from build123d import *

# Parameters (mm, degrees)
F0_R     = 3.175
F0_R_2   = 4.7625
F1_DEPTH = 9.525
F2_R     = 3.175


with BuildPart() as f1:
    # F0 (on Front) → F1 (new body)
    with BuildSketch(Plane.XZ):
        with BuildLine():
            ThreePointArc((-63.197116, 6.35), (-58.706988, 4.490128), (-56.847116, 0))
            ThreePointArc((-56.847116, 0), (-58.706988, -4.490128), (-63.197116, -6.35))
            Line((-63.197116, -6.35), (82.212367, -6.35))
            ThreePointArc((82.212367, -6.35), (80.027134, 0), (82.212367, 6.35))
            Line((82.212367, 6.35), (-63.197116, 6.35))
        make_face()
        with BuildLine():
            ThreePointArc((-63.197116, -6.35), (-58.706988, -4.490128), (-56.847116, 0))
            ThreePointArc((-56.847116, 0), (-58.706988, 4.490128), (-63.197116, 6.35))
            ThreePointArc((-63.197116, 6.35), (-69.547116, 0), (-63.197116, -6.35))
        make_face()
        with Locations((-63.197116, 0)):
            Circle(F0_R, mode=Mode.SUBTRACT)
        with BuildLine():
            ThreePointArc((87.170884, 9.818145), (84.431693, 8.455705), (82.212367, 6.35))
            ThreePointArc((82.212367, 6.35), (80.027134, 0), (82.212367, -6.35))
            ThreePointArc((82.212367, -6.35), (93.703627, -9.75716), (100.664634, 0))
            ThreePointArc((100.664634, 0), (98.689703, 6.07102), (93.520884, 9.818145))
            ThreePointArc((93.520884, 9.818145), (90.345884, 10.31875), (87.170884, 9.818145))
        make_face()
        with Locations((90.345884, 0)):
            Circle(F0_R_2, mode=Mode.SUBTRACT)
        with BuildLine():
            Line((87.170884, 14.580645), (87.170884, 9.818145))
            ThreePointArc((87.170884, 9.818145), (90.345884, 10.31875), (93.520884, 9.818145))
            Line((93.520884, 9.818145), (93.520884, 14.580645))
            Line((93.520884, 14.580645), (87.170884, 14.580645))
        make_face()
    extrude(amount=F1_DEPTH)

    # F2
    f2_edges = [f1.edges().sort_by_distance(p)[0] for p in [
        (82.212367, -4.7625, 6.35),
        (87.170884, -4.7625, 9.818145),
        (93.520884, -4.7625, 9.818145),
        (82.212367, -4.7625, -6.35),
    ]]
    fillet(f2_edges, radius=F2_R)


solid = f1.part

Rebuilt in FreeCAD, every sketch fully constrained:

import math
import FreeCAD as App
import Part
import Sketcher
from FreeCAD import Vector
Q = App.Units.Quantity


def edges_at(feature, points):
    """Names of the edges that pass closest to the given points."""
    edges = feature.Shape.Edges
    near = lambda p: min(range(len(edges)), key=lambda i: edges[i].distToShape(Part.Vertex(*p))[0])
    return sorted({f"Edge{near(p) + 1}" for p in points})

doc = App.newDocument("Part")
body = doc.addObject("PartDesign::Body", "Body")

# Sketch on XZ plane
sketch1 = body.newObject("Sketcher::SketchObject", "Sketch")
sketch1.AttachmentSupport = (doc.getObject("XZ_Plane"), [""])
sketch1.MapMode = "FlatFace"
sketch1.addGeometry(Part.LineSegment(Vector(-63.197116, -6.35, 0), Vector(82.212367, -6.35, 0)), False)
sketch1.addGeometry(Part.ArcOfCircle(Part.Circle(Vector(90.345884, -0.000001, 0), Vector(0, 0, 1), 10.31875), math.radians(-142.020131), math.radians(0.000003)), False)
sketch1.addGeometry(Part.ArcOfCircle(Part.Circle(Vector(90.345884, 0, 0), Vector(0, 0, 1), 10.31875), math.radians(0.000001), math.radians(72.079788)), False)
sketch1.addGeometry(Part.LineSegment(Vector(93.520884, 9.818145, 0), Vector(93.520884, 14.580645, 0)), False)
sketch1.addGeometry(Part.LineSegment(Vector(93.520884, 14.580645, 0), Vector(87.170884, 14.580645, 0)), False)
sketch1.addGeometry(Part.LineSegment(Vector(87.170884, 14.580645, 0), Vector(87.170884, 9.818145, 0)), False)
sketch1.addGeometry(Part.ArcOfCircle(Part.Circle(Vector(90.345881, 0.000004, 0), Vector(0, 0, 1), 10.318745), math.radians(107.920204), math.radians(142.020134)), False)
sketch1.addGeometry(Part.LineSegment(Vector(82.212367, 6.35, 0), Vector(-63.197116, 6.35, 0)), False)
sketch1.addGeometry(Part.ArcOfCircle(Part.Circle(Vector(-63.197116, 0, 0), Vector(0, 0, 1), 6.35), math.radians(90), math.radians(270)), False)
sketch1.addGeometry(Part.Circle(Vector(-63.197116, 0, 0), Vector(0, 0, 1), 3.175), False)
sketch1.addGeometry(Part.Circle(Vector(90.345884, 0, 0), Vector(0, 0, 1), 4.7625), False)
sketch1.addConstraint(Sketcher.Constraint("Coincident", 0, 2, 1, 1))
sketch1.addConstraint(Sketcher.Constraint("Tangent", 1, 2, 2, 1))
sketch1.addConstraint(Sketcher.Constraint("Coincident", 2, 2, 3, 1))
sketch1.addConstraint(Sketcher.Constraint("Coincident", 3, 2, 4, 1))
sketch1.addConstraint(Sketcher.Constraint("Coincident", 4, 2, 5, 1))
sketch1.addConstraint(Sketcher.Constraint("Coincident", 5, 2, 6, 1))
sketch1.addConstraint(Sketcher.Constraint("Coincident", 6, 2, 7, 1))
sketch1.addConstraint(Sketcher.Constraint("Tangent", 7, 2, 8, 1))
sketch1.addConstraint(Sketcher.Constraint("Tangent", 8, 2, 0, 1))
sketch1.addConstraint(Sketcher.Constraint("Horizontal", 0))
sketch1.addConstraint(Sketcher.Constraint("Vertical", 3))
sketch1.addConstraint(Sketcher.Constraint("Horizontal", 4))
sketch1.addConstraint(Sketcher.Constraint("Vertical", 5))
sketch1.addConstraint(Sketcher.Constraint("Horizontal", 7))
sketch1.addConstraint(Sketcher.Constraint("Coincident", 6, 3, 1, 3))
sketch1.addConstraint(Sketcher.Constraint("Coincident", 9, 3, 8, 3))
sketch1.addConstraint(Sketcher.Constraint("Coincident", 10, 3, 1, 3))
sketch1.addConstraint(Sketcher.Constraint("Equal", 1, 2))
sketch1.addConstraint(Sketcher.Constraint("Symmetric", 0, 2, 6, 2, -1))
sketch1.addConstraint(Sketcher.Constraint("PointOnObject", 1, 3, -1))
sketch1.addConstraint(Sketcher.Constraint("PointOnObject", 1, 2, -1))
sketch1.addConstraint(Sketcher.Constraint("Horizontal", 2, 2, 5, 2))
sketch1.addConstraint(Sketcher.Constraint("Diameter", 9, Q("0.25 in")))
sketch1.addConstraint(Sketcher.Constraint("Radius", 8, Q("0.25 in")))
sketch1.addConstraint(Sketcher.Constraint("Diameter", 10, Q("0.375 in")))
sketch1.addConstraint(Sketcher.Constraint("Radius", 1, Q("0.40625 in")))
sketch1.addConstraint(Sketcher.Constraint("DistanceX", 4, 2, 4, 1, Q("0.25 in")))
sketch1.addConstraint(Sketcher.Constraint("DistanceY", 3, 1, 3, 2, Q("0.1875 in")))
sketch1.addConstraint(Sketcher.Constraint("DistanceX", 7, 2, 5, 2, Q("5.92 in")))
sketch1.addConstraint(Sketcher.Constraint("DistanceX", -1, 1, 6, 3, Q("90.345881 mm")))
pad1 = body.newObject("PartDesign::Pad", "Pad")
pad1.Profile = sketch1
pad1.Length = Q("0.375 in")
doc.recompute()

fillet = body.newObject("PartDesign::Fillet", "Fillet")
fillet.Base = (pad1, edges_at(pad1, [
    (82.212, -4.763, 6.35),
    (87.171, -4.763, 9.818),
    (93.521, -4.763, 9.818),
    (82.212, -4.763, -6.35),
]))
fillet.Radius = Q("0.125 in")

doc.recompute()
